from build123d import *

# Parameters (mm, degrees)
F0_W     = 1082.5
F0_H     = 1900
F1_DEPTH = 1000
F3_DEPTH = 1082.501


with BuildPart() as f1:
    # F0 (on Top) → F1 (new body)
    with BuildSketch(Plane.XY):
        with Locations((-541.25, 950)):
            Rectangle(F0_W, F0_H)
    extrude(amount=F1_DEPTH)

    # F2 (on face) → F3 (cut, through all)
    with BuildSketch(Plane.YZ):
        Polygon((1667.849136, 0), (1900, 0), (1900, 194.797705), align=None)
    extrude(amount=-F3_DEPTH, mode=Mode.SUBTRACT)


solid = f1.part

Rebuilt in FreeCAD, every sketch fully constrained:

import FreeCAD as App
import Part
import Sketcher
from FreeCAD import Vector
Q = App.Units.Quantity


def add_polygon(sketch, points):
    """Adds a closed chain of lines whose ends are joined by coincident constraints."""
    first, n = sketch.GeometryCount, len(points)
    for a, b in zip(points, points[1:] + points[:1]):
        sketch.addGeometry(Part.LineSegment(App.Vector(*a, 0), App.Vector(*b, 0)), False)
    for i in range(n):
        sketch.addConstraint(Sketcher.Constraint("Coincident", first + i, 2, first + (i + 1) % n, 1))

doc = App.newDocument("Part")
body = doc.addObject("PartDesign::Body", "Body")

# Sketch on XY plane
sketch1 = body.newObject("Sketcher::SketchObject", "Sketch")
sketch1.AttachmentSupport = (doc.getObject("XY_Plane"), [""])
sketch1.MapMode = "FlatFace"
add_polygon(sketch1, [(-1082.5, 1900), (-1082.5, 0), (0, 0), (0, 1900)])  # lines 0-3
sketch1.addConstraint(Sketcher.Constraint("Vertical", 0))
sketch1.addConstraint(Sketcher.Constraint("Horizontal", 1))
sketch1.addConstraint(Sketcher.Constraint("Vertical", 2))
sketch1.addConstraint(Sketcher.Constraint("Horizontal", 3))
sketch1.addConstraint(Sketcher.Constraint("Coincident", 1, 2, -1, 1))
sketch1.addConstraint(Sketcher.Constraint("DistanceY", 0, 2, 0, 1, 1900.0))
sketch1.addConstraint(Sketcher.Constraint("DistanceX", 1, 1, 1, 2, 1082.5))
pad1 = body.newObject("PartDesign::Pad", "Pad")
pad1.Profile = sketch1
pad1.Length = 1000

# Sketch on YZ plane
sketch2 = body.newObject("Sketcher::SketchObject", "Sketch001")
sketch2.AttachmentSupport = (doc.getObject("YZ_Plane"), [""])
sketch2.MapMode = "FlatFace"
add_polygon(sketch2, [(1667.849136, 0), (1900, 0), (1900, 194.797705)])  # lines 0-2
sketch2.addConstraint(Sketcher.Constraint("Horizontal", 0))
sketch2.addConstraint(Sketcher.Constraint("Vertical", 1))
sketch2.addConstraint(Sketcher.Constraint("PointOnObject", 0, 2, -1))
sketch2.addConstraint(Sketcher.Constraint("Angle", 2, Q("-140 deg")))
sketch2.addConstraint(Sketcher.Constraint("DistanceX", -1, 1, 0, 2, 1900.0))
sketch2.addConstraint(Sketcher.Constraint("Distance", 2, 303.051431))
pocket1 = body.newObject("PartDesign::Pocket", "Pocket")
pocket1.Profile = sketch2
pocket1.Type = "ThroughAll"

doc.recompute()
